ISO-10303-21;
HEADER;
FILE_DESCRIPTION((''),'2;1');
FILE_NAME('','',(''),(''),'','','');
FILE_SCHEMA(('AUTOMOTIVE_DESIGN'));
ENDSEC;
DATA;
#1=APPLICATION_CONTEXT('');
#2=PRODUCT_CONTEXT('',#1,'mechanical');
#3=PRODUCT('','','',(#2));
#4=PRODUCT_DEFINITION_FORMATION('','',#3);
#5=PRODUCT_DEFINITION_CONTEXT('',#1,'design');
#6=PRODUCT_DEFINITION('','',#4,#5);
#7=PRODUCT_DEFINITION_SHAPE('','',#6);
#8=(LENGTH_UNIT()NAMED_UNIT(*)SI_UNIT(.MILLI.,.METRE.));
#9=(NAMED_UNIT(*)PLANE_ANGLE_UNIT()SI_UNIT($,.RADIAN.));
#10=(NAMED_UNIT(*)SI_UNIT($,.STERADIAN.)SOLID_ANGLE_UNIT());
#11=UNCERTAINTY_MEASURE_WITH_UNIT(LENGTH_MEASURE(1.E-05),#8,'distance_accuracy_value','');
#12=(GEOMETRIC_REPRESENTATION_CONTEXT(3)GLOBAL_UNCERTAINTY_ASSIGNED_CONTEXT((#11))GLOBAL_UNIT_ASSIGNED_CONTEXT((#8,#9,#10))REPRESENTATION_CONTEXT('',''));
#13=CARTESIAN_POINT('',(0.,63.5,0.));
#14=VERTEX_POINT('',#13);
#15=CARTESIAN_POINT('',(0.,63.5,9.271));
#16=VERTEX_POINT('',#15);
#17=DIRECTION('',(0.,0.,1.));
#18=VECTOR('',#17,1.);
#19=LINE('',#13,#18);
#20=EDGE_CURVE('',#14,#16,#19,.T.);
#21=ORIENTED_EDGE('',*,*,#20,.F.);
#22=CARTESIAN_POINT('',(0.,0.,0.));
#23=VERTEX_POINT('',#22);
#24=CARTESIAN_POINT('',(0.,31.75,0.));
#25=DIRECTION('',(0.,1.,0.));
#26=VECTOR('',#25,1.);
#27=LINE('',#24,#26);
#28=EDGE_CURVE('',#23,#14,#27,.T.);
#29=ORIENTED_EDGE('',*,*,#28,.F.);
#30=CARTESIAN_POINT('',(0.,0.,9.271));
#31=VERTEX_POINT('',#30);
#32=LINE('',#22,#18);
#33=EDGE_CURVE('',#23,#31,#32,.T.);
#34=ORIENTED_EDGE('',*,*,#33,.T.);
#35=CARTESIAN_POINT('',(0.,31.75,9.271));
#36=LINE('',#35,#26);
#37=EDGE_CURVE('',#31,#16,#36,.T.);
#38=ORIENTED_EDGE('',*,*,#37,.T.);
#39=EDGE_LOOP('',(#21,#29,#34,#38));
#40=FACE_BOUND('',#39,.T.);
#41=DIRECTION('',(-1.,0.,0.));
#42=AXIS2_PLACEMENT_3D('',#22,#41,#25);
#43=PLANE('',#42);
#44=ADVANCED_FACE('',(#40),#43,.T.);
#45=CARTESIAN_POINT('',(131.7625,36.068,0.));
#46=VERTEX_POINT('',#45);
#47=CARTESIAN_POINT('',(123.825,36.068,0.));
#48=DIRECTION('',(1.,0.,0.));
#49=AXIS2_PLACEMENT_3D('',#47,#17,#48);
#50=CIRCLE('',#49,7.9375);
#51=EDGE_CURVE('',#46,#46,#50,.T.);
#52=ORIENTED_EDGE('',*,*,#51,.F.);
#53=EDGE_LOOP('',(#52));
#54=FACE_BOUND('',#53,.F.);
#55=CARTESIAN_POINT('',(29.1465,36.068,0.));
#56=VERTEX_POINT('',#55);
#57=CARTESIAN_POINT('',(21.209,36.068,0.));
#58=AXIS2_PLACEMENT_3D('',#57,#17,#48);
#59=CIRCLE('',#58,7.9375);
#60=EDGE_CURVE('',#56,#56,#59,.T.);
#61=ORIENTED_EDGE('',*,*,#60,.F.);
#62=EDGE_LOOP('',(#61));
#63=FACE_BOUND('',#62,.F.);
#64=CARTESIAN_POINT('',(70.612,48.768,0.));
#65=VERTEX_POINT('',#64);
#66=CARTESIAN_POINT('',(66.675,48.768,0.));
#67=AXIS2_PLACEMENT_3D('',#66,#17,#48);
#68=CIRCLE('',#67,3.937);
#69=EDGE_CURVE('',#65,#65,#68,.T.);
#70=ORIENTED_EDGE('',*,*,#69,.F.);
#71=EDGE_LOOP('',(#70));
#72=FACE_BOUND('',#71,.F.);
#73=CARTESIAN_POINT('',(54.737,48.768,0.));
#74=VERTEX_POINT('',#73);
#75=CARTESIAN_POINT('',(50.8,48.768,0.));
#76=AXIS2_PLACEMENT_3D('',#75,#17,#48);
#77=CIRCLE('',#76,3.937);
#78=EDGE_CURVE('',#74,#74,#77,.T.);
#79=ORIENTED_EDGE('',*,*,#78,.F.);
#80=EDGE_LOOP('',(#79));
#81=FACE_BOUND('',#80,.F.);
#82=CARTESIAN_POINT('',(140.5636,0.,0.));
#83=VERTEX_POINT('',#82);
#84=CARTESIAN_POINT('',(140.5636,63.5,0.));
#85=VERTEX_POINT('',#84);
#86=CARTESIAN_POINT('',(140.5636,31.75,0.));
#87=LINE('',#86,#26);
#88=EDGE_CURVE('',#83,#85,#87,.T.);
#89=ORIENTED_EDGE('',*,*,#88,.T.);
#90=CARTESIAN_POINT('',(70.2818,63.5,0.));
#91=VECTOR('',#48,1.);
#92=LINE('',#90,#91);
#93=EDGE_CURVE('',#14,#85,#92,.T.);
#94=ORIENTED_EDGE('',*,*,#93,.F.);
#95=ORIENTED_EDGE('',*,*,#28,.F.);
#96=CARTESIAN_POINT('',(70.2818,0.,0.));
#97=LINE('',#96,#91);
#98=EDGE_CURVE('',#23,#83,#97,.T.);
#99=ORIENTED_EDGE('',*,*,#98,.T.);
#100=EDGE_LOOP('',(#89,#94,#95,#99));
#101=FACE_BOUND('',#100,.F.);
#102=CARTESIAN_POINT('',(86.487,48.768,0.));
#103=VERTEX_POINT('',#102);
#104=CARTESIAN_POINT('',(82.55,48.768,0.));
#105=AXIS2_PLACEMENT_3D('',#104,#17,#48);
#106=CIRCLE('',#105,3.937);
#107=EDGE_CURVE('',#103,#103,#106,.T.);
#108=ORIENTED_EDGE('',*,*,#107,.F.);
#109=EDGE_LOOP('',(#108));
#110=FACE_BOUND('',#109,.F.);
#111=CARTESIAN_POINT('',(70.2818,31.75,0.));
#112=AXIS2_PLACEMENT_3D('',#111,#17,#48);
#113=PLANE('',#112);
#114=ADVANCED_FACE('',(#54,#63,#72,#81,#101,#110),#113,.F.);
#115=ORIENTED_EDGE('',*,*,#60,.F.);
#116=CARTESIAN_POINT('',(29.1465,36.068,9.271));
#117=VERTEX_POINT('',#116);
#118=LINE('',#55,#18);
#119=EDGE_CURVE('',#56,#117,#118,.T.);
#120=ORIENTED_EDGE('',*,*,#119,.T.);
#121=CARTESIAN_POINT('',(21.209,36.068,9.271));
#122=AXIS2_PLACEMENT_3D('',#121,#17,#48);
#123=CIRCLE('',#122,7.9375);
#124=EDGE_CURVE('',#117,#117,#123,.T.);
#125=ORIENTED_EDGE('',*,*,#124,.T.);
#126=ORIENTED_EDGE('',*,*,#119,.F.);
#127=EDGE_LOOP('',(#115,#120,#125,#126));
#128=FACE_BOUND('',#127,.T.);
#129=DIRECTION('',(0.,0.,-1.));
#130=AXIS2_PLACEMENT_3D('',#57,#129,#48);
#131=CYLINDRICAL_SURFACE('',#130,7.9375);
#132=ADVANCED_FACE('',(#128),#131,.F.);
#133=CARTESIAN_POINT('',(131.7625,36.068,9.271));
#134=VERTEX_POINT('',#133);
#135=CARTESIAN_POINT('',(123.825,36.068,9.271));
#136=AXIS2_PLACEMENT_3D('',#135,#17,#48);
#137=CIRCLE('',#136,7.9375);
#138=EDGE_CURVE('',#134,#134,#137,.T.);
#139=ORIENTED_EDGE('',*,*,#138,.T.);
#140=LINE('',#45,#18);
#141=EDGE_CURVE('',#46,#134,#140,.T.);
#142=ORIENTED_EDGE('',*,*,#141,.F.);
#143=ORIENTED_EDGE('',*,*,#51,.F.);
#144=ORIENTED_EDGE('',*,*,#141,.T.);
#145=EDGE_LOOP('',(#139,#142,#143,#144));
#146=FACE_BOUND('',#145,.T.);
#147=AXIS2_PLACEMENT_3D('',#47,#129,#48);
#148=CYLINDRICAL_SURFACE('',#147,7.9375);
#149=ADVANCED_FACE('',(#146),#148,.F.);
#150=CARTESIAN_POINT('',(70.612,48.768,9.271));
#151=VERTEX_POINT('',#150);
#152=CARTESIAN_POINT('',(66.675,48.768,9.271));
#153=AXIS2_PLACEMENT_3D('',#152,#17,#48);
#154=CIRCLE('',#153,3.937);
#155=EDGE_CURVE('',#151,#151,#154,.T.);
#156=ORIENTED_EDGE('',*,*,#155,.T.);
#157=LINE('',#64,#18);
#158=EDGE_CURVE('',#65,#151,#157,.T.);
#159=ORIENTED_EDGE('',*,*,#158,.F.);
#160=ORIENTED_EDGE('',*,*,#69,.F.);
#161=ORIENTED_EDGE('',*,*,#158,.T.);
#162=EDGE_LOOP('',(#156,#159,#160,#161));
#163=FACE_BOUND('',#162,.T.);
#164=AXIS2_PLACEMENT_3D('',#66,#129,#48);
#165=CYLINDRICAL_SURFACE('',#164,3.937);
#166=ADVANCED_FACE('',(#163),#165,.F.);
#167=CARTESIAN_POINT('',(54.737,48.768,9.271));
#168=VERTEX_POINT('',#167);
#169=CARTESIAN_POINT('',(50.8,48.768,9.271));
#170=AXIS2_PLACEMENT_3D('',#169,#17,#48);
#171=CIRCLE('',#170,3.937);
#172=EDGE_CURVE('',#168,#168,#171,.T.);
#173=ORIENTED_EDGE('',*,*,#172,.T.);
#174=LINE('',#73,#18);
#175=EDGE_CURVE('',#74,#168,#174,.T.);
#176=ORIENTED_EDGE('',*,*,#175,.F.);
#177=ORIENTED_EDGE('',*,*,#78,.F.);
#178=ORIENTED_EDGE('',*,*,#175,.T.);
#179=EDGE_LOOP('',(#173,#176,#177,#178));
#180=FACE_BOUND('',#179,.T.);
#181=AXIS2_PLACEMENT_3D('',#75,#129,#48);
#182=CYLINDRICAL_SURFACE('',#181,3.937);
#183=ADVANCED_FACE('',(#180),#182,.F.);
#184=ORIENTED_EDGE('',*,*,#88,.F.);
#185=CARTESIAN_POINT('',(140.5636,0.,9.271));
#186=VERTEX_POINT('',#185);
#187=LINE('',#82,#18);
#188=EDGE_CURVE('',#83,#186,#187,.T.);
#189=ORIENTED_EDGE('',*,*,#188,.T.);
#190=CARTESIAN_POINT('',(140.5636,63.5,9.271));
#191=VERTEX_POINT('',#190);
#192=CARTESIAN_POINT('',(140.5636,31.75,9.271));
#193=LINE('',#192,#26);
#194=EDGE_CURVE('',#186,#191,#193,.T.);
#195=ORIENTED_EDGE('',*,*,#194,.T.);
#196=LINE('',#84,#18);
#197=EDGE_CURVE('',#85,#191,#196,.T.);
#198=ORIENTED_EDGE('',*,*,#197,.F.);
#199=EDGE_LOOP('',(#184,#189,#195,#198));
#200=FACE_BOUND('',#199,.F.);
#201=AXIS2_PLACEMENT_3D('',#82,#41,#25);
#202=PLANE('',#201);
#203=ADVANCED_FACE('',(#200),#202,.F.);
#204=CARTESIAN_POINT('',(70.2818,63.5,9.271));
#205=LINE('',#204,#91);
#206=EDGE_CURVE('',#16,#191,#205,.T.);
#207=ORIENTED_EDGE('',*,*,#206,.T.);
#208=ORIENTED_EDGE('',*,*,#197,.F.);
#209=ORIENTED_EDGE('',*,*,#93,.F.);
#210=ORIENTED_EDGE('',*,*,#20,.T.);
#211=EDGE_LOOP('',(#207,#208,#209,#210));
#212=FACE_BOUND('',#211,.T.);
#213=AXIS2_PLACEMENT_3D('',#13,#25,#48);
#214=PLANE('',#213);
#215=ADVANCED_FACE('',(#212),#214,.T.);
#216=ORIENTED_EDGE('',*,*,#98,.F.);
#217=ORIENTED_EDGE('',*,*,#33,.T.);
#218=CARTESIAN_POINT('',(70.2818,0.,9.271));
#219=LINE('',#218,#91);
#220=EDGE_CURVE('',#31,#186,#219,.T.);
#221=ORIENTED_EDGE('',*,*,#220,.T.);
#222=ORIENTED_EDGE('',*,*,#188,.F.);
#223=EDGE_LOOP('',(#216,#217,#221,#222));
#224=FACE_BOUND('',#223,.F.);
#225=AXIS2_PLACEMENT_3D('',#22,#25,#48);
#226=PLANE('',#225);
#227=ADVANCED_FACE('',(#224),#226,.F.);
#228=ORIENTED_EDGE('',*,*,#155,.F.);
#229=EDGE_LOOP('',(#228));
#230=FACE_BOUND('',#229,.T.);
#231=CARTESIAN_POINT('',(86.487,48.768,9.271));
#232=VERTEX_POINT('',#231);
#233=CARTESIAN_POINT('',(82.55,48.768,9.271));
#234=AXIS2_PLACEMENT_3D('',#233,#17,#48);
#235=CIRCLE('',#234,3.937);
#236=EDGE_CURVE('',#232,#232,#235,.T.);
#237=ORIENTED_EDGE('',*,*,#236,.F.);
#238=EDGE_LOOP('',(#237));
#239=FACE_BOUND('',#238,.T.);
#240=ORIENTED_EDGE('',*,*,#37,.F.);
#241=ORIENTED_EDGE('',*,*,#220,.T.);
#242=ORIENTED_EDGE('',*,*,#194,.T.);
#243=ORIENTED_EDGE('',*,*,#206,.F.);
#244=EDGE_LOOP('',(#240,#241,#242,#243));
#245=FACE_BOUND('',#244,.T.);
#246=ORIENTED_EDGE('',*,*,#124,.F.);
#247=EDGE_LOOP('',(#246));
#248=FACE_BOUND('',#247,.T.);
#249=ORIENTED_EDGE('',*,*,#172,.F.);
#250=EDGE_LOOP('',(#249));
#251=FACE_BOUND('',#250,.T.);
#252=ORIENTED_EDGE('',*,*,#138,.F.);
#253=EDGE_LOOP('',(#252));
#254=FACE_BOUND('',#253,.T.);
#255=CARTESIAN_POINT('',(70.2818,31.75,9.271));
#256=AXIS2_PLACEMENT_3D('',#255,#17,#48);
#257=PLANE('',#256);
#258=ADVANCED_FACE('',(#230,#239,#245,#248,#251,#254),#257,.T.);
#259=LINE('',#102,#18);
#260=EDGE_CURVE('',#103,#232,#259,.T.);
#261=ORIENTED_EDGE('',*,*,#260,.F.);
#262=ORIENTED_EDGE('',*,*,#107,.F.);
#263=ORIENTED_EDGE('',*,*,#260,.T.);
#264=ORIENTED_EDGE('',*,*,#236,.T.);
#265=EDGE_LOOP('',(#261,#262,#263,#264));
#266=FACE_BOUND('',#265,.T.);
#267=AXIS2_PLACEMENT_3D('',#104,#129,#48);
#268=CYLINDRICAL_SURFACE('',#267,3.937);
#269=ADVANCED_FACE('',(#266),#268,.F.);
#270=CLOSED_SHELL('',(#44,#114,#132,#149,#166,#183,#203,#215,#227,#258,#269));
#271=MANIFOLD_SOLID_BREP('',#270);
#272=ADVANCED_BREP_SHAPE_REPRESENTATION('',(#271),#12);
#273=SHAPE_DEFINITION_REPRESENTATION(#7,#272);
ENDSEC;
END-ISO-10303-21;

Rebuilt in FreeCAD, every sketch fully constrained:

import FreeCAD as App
import Part
import Sketcher
from FreeCAD import Vector
Q = App.Units.Quantity

doc = App.newDocument("Part")
body = doc.addObject("PartDesign::Body", "Body")

sketch1 = doc.addObject("Sketcher::SketchObject", "Sketch")
body.addObject(sketch1)
sketch1.AttachmentSupport = (doc.XY_Plane, [""])
sketch1.MapMode = "FlatFace"
sketch1.addGeometry([
    Part.LineSegment(Vector(0, 63.5, 0), Vector(0, 0, 0)),
    Part.LineSegment(Vector(0, 0, 0), Vector(140.6, 0, 0)),
    Part.LineSegment(Vector(140.6, 0, 0), Vector(140.6, 63.5, 0)),
    Part.LineSegment(Vector(140.6, 63.5, 0), Vector(0, 63.5, 0)),
    Part.Circle(Vector(21.2, 36.1, 0), Vector(0, 0, 1), 7.9),
    Part.Circle(Vector(123.8, 36.1, 0), Vector(0, 0, 1), 7.9),
    Part.Circle(Vector(50.8, 48.8, 0), Vector(0, 0, 1), 3.9),
    Part.Circle(Vector(66.7, 48.8, 0), Vector(0, 0, 1), 3.9),
    Part.Circle(Vector(82.5, 48.8, 0), Vector(0, 0, 1), 3.9),
], False)
sketch1.addConstraint([
    Sketcher.Constraint("Coincident", 0, 2, 1, 1),
    Sketcher.Constraint("Coincident", 1, 2, 2, 1),
    Sketcher.Constraint("Coincident", 2, 2, 3, 1),
    Sketcher.Constraint("Coincident", 3, 2, 0, 1),
    Sketcher.Constraint("Vertical", 0),
    Sketcher.Constraint("Horizontal", 1),
    Sketcher.Constraint("Vertical", 2),
    Sketcher.Constraint("Horizontal", 3),
    Sketcher.Constraint("Coincident", 0, 2, -1, 1),
    Sketcher.Constraint("Equal", 4, 5),
    Sketcher.Constraint("Equal", 6, 7),
    Sketcher.Constraint("Equal", 7, 8),
    Sketcher.Constraint("Horizontal", 4, 3, 5, 3),
    Sketcher.Constraint("Horizontal", 6, 3, 7, 3),
    Sketcher.Constraint("Horizontal", 7, 3, 8, 3),
    Sketcher.Constraint("Diameter", 6, Q("0.31 in")),
    Sketcher.Constraint("Diameter", 4, Q("0.625 in")),
    Sketcher.Constraint("DistanceY", 0, 2, 0, 1, Q("2.5 in")),
    Sketcher.Constraint("DistanceX", -1, 1, 6, 3, Q("2 in")),
    Sketcher.Constraint("DistanceY", 4, 3, 6, 3, Q("0.5 in")),
    Sketcher.Constraint("DistanceX", 1, 1, 1, 2, Q("5.534 in")),
    Sketcher.Constraint("DistanceY", -1, 1, 4, 3, Q("1.42 in")),
    Sketcher.Constraint("DistanceX", -1, 1, 8, 3, Q("3.25 in")),
    Sketcher.Constraint("DistanceX", 4, 3, 5, 3, Q("4.04 in")),
    Sketcher.Constraint("DistanceX", 4, 3, 7, 3, Q("1.79 in")),
    Sketcher.Constraint("DistanceX", -1, 1, 4, 3, Q("0.835 in")),
])
pad1 = doc.addObject("PartDesign::Pad", "Pad")
body.addObject(pad1)
pad1.Profile = sketch1
pad1.Length = Q("0.365 in")

doc.recompute()
